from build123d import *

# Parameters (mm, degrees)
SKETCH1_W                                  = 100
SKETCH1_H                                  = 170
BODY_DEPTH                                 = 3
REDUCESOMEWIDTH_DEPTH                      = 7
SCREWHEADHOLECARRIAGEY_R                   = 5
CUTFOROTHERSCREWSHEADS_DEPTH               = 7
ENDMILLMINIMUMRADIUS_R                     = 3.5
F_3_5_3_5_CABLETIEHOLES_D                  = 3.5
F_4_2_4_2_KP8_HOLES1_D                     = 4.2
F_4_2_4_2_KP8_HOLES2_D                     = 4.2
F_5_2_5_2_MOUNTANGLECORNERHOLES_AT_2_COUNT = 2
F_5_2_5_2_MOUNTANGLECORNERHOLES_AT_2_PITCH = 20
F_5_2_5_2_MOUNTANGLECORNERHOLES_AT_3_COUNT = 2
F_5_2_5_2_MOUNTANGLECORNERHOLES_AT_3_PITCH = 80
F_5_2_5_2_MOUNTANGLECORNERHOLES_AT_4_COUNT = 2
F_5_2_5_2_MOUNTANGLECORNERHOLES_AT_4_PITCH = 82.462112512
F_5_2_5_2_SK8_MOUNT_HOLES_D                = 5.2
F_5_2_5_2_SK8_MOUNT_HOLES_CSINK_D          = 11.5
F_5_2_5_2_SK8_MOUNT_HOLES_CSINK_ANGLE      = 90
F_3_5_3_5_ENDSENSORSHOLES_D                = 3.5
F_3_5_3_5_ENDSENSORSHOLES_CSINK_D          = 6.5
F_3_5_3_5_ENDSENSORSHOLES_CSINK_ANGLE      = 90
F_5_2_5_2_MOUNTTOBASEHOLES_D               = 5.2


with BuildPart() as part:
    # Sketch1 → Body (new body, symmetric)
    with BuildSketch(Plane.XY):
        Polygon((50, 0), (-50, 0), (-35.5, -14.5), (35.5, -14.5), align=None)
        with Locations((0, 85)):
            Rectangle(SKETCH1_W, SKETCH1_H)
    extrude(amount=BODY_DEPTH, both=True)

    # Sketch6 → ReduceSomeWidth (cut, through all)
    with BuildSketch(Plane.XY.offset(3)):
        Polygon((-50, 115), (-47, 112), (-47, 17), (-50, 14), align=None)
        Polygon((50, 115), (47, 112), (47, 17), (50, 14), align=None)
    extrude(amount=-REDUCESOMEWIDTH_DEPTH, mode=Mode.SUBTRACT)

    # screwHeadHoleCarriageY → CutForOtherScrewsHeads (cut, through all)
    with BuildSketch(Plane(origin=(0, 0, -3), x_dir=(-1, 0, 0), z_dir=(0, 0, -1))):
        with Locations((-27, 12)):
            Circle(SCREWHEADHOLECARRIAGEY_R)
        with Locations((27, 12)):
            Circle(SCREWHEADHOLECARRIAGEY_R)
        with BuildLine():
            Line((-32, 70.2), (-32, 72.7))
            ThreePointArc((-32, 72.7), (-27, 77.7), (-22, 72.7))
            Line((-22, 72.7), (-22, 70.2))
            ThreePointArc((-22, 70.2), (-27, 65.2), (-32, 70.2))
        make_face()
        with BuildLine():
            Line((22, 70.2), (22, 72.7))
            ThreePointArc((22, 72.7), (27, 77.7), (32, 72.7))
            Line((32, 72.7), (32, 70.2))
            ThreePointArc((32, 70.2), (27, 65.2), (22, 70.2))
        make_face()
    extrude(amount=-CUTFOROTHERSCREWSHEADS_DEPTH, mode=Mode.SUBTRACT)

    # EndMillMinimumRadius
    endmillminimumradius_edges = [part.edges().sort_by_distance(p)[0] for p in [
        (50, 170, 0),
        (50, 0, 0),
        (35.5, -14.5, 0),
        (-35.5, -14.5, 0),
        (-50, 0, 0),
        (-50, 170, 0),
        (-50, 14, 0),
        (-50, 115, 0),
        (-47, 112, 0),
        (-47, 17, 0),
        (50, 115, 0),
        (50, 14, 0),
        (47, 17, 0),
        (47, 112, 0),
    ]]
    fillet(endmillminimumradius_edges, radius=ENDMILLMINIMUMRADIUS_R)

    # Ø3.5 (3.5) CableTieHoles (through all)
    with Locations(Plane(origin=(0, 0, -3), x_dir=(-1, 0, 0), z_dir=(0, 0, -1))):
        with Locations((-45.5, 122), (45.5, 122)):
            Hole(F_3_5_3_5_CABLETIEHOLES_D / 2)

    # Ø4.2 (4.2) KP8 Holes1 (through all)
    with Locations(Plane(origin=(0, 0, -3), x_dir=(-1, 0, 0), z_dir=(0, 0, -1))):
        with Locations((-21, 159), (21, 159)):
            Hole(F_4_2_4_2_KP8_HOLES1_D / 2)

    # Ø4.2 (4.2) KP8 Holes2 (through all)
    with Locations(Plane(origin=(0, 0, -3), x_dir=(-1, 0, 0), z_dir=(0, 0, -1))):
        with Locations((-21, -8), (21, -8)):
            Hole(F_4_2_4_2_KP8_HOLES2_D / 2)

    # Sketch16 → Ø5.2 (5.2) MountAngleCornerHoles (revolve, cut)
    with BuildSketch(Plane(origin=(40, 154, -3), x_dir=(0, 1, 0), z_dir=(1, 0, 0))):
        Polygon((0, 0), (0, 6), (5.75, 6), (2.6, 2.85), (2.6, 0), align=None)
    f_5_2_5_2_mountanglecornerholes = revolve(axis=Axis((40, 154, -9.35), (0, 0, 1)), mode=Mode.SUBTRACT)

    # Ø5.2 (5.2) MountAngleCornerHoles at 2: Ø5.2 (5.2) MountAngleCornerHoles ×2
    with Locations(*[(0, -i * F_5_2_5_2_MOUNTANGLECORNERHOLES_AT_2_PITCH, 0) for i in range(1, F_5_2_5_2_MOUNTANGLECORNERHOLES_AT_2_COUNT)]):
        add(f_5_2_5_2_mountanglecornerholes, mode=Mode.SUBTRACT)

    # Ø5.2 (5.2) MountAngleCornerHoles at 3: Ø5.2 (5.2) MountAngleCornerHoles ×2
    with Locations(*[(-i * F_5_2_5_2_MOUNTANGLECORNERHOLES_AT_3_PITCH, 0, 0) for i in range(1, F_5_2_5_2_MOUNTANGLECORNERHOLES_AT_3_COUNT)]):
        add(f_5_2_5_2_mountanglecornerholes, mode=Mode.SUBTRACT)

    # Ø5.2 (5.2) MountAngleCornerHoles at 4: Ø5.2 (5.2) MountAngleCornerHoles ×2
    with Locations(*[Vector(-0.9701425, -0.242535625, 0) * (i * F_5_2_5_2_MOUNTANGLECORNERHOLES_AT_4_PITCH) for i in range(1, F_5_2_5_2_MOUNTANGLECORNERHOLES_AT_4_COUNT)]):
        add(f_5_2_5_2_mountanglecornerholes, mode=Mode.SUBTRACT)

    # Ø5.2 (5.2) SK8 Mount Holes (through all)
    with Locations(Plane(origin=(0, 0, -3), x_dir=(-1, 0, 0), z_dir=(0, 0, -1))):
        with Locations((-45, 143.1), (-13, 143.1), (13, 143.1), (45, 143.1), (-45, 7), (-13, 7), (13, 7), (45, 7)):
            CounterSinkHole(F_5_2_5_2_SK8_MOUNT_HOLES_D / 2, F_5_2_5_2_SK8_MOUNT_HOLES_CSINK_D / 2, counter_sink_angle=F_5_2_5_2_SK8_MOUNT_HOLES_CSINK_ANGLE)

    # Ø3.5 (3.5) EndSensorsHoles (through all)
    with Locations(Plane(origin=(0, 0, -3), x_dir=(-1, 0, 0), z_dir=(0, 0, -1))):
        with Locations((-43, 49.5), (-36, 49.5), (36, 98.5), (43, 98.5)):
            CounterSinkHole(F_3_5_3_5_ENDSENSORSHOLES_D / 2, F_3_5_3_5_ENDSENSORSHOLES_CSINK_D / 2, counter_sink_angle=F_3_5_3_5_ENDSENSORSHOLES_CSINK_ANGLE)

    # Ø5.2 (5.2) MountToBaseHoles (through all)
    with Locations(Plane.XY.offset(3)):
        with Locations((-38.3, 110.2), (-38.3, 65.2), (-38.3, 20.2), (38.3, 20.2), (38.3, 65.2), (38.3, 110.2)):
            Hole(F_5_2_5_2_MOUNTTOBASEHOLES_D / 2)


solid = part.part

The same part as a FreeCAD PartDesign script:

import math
import FreeCAD as App
import Part
import Sketcher
Q = App.Units.Quantity


def edges_at(feature, points):
    """Names of the edges that pass closest to the given points."""
    edges = feature.Shape.Edges
    near = lambda p: min(range(len(edges)), key=lambda i: edges[i].distToShape(Part.Vertex(*p))[0])
    return sorted({f"Edge{near(p) + 1}" for p in points})


def add_polygon(sketch, points):
    """Adds a closed chain of lines whose ends are joined by coincident constraints."""
    first, n = sketch.GeometryCount, len(points)
    for a, b in zip(points, points[1:] + points[:1]):
        sketch.addGeometry(Part.LineSegment(App.Vector(*a, 0), App.Vector(*b, 0)), False)
    for i in range(n):
        sketch.addConstraint(Sketcher.Constraint("Coincident", first + i, 2, first + (i + 1) % n, 1))

doc = App.newDocument("Part")
body = doc.addObject("PartDesign::Body", "Body")

sketch1 = doc.addObject("Sketcher::SketchObject", "Sketch")
body.addObject(sketch1)
sketch1.AttachmentSupport = (doc.XY_Plane, [""])
sketch1.MapMode = "FlatFace"
add_polygon(sketch1, [(-50, 0), (-36, -14), (36, -14), (50, 0), (50, 170), (-50, 170)])
sketch1.addConstraint(Sketcher.Constraint("Horizontal", 1))
sketch1.addConstraint(Sketcher.Constraint("Vertical", 3))
sketch1.addConstraint(Sketcher.Constraint("Horizontal", 4))
sketch1.addConstraint(Sketcher.Constraint("Vertical", 5))
sketch1.addConstraint(Sketcher.Constraint("Symmetric", 2, 2, 5, 2, -1, 1))
sketch1.addConstraint(Sketcher.Constraint("PointOnObject", 2, 2, -1))
sketch1.addConstraint(Sketcher.Constraint("Perpendicular", 0, 2))
sketch1.addConstraint(Sketcher.Constraint("Equal", 0, 2))
sketch1.addConstraint(Sketcher.Constraint("DistanceX", 1, 1, 1, 2, Q("71 mm")))
sketch1.addConstraint(Sketcher.Constraint("DistanceX", 4, 2, 4, 1, Q("100 mm")))
sketch1.addConstraint(Sketcher.Constraint("DistanceY", 3, 1, 3, 2, Q("170 mm")))
pad1 = doc.addObject("PartDesign::Pad", "Pad")
body.addObject(pad1)
pad1.Profile = sketch1
pad1.Length = 6
pad1.Midplane = True

sketch2 = doc.addObject("Sketcher::SketchObject", "Sketch001")
body.addObject(sketch2)
sketch2.AttachmentSupport = (doc.XY_Plane, [""])
sketch2.MapMode = "FlatFace"
sketch2.AttachmentOffset = App.Placement(App.Vector(0, 0, 3), App.Rotation())
add_polygon(sketch2, [(-47, 112), (-50, 115), (-50, 14), (-47, 17)])
add_polygon(sketch2, [(50, 115), (47, 112), (47, 17), (50, 14)])
sketch2.addConstraint(Sketcher.Constraint("Vertical", 1))
sketch2.addConstraint(Sketcher.Constraint("Vertical", 3))
sketch2.addConstraint(Sketcher.Constraint("Vertical", 5))
sketch2.addConstraint(Sketcher.Constraint("Vertical", 7))
sketch2.addConstraint(Sketcher.Constraint("Symmetric", 3, 2, 4, 2, -2))
sketch2.addConstraint(Sketcher.Constraint("Symmetric", 1, 2, 6, 2, -2))
sketch2.addConstraint(Sketcher.Constraint("Perpendicular", 0, 2))
sketch2.addConstraint(Sketcher.Constraint("Parallel", 2, 4))
sketch2.addConstraint(Sketcher.Constraint("Perpendicular", 4, 6))
sketch2.addConstraint(Sketcher.Constraint("Horizontal", 2, 2, 5, 2))
sketch2.addConstraint(Sketcher.Constraint("DistanceY", 1, 2, 1, 1, Q("101 mm")))
sketch2.addConstraint(Sketcher.Constraint("DistanceY", 3, 1, 3, 2, Q("95 mm")))
sketch2.addConstraint(Sketcher.Constraint("DistanceX", 0, 2, -1, 1, Q("50 mm")))
sketch2.addConstraint(Sketcher.Constraint("DistanceY", -1, 1, 0, 2, Q("115 mm")))
pocket1 = doc.addObject("PartDesign::Pocket", "Pocket")
body.addObject(pocket1)
pocket1.Profile = sketch2
pocket1.Type = "ThroughAll"

sketch3 = doc.addObject("Sketcher::SketchObject", "Sketch002")
body.addObject(sketch3)
sketch3.AttachmentSupport = (doc.XY_Plane, [""])
sketch3.MapMode = "FlatFace"
sketch3.AttachmentOffset = App.Placement(App.Vector(0, 0, -3), App.Rotation())
sketch3.addGeometry(Part.Circle(App.Vector(27, 12, 0), App.Vector(0, 0, 1), 5), False)
sketch3.addGeometry(Part.Circle(App.Vector(-27, 12, 0), App.Vector(0, 0, 1), 5), False)
sketch3.addGeometry(Part.LineSegment(App.Vector(32, 72.7, 0), App.Vector(32, 70.2, 0)), False)
sketch3.addGeometry(Part.ArcOfCircle(Part.Circle(App.Vector(27, 70.2, 0), App.Vector(0, 0, 1), 5), math.radians(180), math.radians(360)), False)
sketch3.addGeometry(Part.LineSegment(App.Vector(22, 70.2, 0), App.Vector(22, 72.7, 0)), False)
sketch3.addGeometry(Part.ArcOfCircle(Part.Circle(App.Vector(27, 72.7, 0), App.Vector(0, 0, 1), 5), math.radians(0), math.radians(180)), False)
sketch3.addGeometry(Part.LineSegment(App.Vector(-22, 72.7, 0), App.Vector(-22, 70.2, 0)), False)
sketch3.addGeometry(Part.ArcOfCircle(Part.Circle(App.Vector(-27, 70.2, 0), App.Vector(0, 0, 1), 5), math.radians(180), math.radians(360)), False)
sketch3.addGeometry(Part.LineSegment(App.Vector(-32, 70.2, 0), App.Vector(-32, 72.7, 0)), False)
sketch3.addGeometry(Part.ArcOfCircle(Part.Circle(App.Vector(-27, 72.7, 0), App.Vector(0, 0, 1), 5), math.radians(0), math.radians(180)), False)
sketch3.addConstraint(Sketcher.Constraint("Tangent", 2, 2, 3, 2))
sketch3.addConstraint(Sketcher.Constraint("Tangent", 3, 1, 4, 1))
sketch3.addConstraint(Sketcher.Constraint("Tangent", 4, 2, 5, 2))
sketch3.addConstraint(Sketcher.Constraint("Tangent", 5, 1, 2, 1))
sketch3.addConstraint(Sketcher.Constraint("Tangent", 6, 2, 7, 2))
sketch3.addConstraint(Sketcher.Constraint("Tangent", 7, 1, 8, 1))
sketch3.addConstraint(Sketcher.Constraint("Tangent", 8, 2, 9, 2))
sketch3.addConstraint(Sketcher.Constraint("Tangent", 9, 1, 6, 1))
sketch3.addConstraint(Sketcher.Constraint("Vertical", 2))
sketch3.addConstraint(Sketcher.Constraint("Vertical", 4))
sketch3.addConstraint(Sketcher.Constraint("Vertical", 6))
sketch3.addConstraint(Sketcher.Constraint("Vertical", 8))
sketch3.addConstraint(Sketcher.Constraint("Equal", 0, 1))
sketch3.addConstraint(Sketcher.Constraint("Equal", 1, 3))
sketch3.addConstraint(Sketcher.Constraint("Equal", 5, 7))
sketch3.addConstraint(Sketcher.Constraint("Symmetric", 0, 3, 1, 3, -2))
sketch3.addConstraint(Sketcher.Constraint("Symmetric", 3, 3, 7, 3, -2))
sketch3.addConstraint(Sketcher.Constraint("Horizontal", 5, 3, 9, 3))
sketch3.addConstraint(Sketcher.Constraint("Vertical", 0, 3, 3, 3))
sketch3.addConstraint(Sketcher.Constraint("Diameter", 0, Q("10 mm")))
sketch3.addConstraint(Sketcher.Constraint("DistanceY", 2, 2, 2, 1, Q("2.5 mm")))
sketch3.addConstraint(Sketcher.Constraint("DistanceX", -1, 1, 0, 3, Q("27 mm")))
sketch3.addConstraint(Sketcher.Constraint("DistanceY", -1, 1, 0, 3, Q("12 mm")))
sketch3.addConstraint(Sketcher.Constraint("DistanceY", -1, 1, 3, 3, Q("70.2 mm")))
pocket2 = doc.addObject("PartDesign::Pocket", "Pocket001")
body.addObject(pocket2)
pocket2.Profile = sketch3
pocket2.Type = "ThroughAll"
pocket2.Reversed = True
doc.recompute()

fillet = doc.addObject("PartDesign::Fillet", "Fillet")
body.addObject(fillet)
fillet.Base = (pocket2, edges_at(pocket2, [
    (50, 170, 0),
    (50, 0, 0),
    (35.5, -14.5, 0),
    (-35.5, -14.5, 0),
    (-50, 0, 0),
    (-50, 170, 0),
    (-50, 14, 0),
    (-50, 115, 0),
    (-47, 112, 0),
    (-47, 17, 0),
    (50, 115, 0),
    (50, 14, 0),
    (47, 17, 0),
    (47, 112, 0),
]))
fillet.Radius = 3.5

sketch4 = doc.addObject("Sketcher::SketchObject", "Sketch003")
body.addObject(sketch4)
sketch4.AttachmentSupport = (doc.XY_Plane, [""])
sketch4.MapMode = "FlatFace"
sketch4.AttachmentOffset = App.Placement(App.Vector(0, 0, -3), App.Rotation())
sketch4.addGeometry(Part.Circle(App.Vector(45.5, 122, 0), App.Vector(0, 0, 1), 1.8), False)
sketch4.addGeometry(Part.Circle(App.Vector(-45.5, 122, 0), App.Vector(0, 0, 1), 1.8), False)
sketch4.addConstraint(Sketcher.Constraint("Equal", 0, 1))
sketch4.addConstraint(Sketcher.Constraint("Symmetric", 0, 3, 1, 3, -2))
sketch4.addConstraint(Sketcher.Constraint("Diameter", 0, Q("3.5 mm")))
sketch4.addConstraint(Sketcher.Constraint("DistanceY", -1, 1, 0, 3, Q("122 mm")))
sketch4.addConstraint(Sketcher.Constraint("DistanceX", 1, 3, 0, 3, Q("91 mm")))
doc.recompute()
hole = doc.addObject("PartDesign::Hole", "Hole")
body.addObject(hole)
hole.Profile = sketch4
hole.ThreadType = "None"
hole.Diameter = 3.5
hole.DepthType = "ThroughAll"
hole.Reversed = True

sketch5 = doc.addObject("Sketcher::SketchObject", "Sketch004")
body.addObject(sketch5)
sketch5.AttachmentSupport = (doc.XY_Plane, [""])
sketch5.MapMode = "FlatFace"
sketch5.AttachmentOffset = App.Placement(App.Vector(0, 0, -3), App.Rotation())
sketch5.addGeometry(Part.Circle(App.Vector(21, 159, 0), App.Vector(0, 0, 1), 2.1), False)
sketch5.addGeometry(Part.Circle(App.Vector(-21, 159, 0), App.Vector(0, 0, 1), 2.1), False)
sketch5.addConstraint(Sketcher.Constraint("Equal", 0, 1))
sketch5.addConstraint(Sketcher.Constraint("Symmetric", 0, 3, 1, 3, -2))
sketch5.addConstraint(Sketcher.Constraint("Diameter", 0, Q("4.2 mm")))
sketch5.addConstraint(Sketcher.Constraint("DistanceX", -1, 1, 0, 3, Q("21 mm")))
sketch5.addConstraint(Sketcher.Constraint("DistanceY", -1, 1, 0, 3, Q("159 mm")))
doc.recompute()
hole2 = doc.addObject("PartDesign::Hole", "Hole001")
body.addObject(hole2)
hole2.Profile = sketch5
hole2.ThreadType = "None"
hole2.Diameter = 4.2
hole2.DepthType = "ThroughAll"
hole2.Reversed = True

sketch6 = doc.addObject("Sketcher::SketchObject", "Sketch005")
body.addObject(sketch6)
sketch6.AttachmentSupport = (doc.XY_Plane, [""])
sketch6.MapMode = "FlatFace"
sketch6.AttachmentOffset = App.Placement(App.Vector(0, 0, -3), App.Rotation())
sketch6.addGeometry(Part.Circle(App.Vector(21, -8, 0), App.Vector(0, 0, 1), 2.1), False)
sketch6.addGeometry(Part.Circle(App.Vector(-21, -8, 0), App.Vector(0, 0, 1), 2.1), False)
sketch6.addConstraint(Sketcher.Constraint("Equal", 0, 1))
sketch6.addConstraint(Sketcher.Constraint("Symmetric", 0, 3, 1, 3, -2))
sketch6.addConstraint(Sketcher.Constraint("Diameter", 0, Q("4.2 mm")))
sketch6.addConstraint(Sketcher.Constraint("DistanceX", -1, 1, 0, 3, Q("21 mm")))
sketch6.addConstraint(Sketcher.Constraint("DistanceY", 0, 3, -1, 1, Q("8 mm")))
doc.recompute()
hole3 = doc.addObject("PartDesign::Hole", "Hole002")
body.addObject(hole3)
hole3.Profile = sketch6
hole3.ThreadType = "None"
hole3.Diameter = 4.2
hole3.DepthType = "ThroughAll"
hole3.Reversed = True

sketch7 = doc.addObject("Sketcher::SketchObject", "Sketch006")
body.addObject(sketch7)
sketch7.AttachmentSupport = (doc.YZ_Plane, [""])
sketch7.MapMode = "FlatFace"
sketch7.AttachmentOffset = App.Placement(App.Vector(0, 0, 40), App.Rotation())
add_polygon(sketch7, [(154, 3), (154, -3), (156.6, -3), (156.6, -0.1), (159.8, 3)])
sketch7.addGeometry(Part.LineSegment(App.Vector(154, -3, 0), App.Vector(154, 3, 0)), True)
sketch7.addConstraint(Sketcher.Constraint("Vertical", 0))
sketch7.addConstraint(Sketcher.Constraint("Horizontal", 1))
sketch7.addConstraint(Sketcher.Constraint("Vertical", 2))
sketch7.addConstraint(Sketcher.Constraint("Horizontal", 4))
sketch7.addConstraint(Sketcher.Constraint("Vertical", 5))
sketch7.addConstraint(Sketcher.Constraint("Coincident", 5, 1, 0, 2))
sketch7.addConstraint(Sketcher.Constraint("Horizontal", 3, 2, 5, 2))
sketch7.addConstraint(Sketcher.Constraint("DistanceY", 0, 2, 0, 1, Q("6 mm")))
sketch7.addConstraint(Sketcher.Constraint("Angle", 3, Q("45 deg")))
sketch7.addConstraint(Sketcher.Constraint("DistanceX", 1, 1, 1, 2, Q("2.6 mm")))
sketch7.addConstraint(Sketcher.Constraint("DistanceX", -1, 1, 0, 2, Q("154 mm")))
sketch7.addConstraint(Sketcher.Constraint("DistanceY", 0, 2, -1, 1, Q("3 mm")))
sketch7.addConstraint(Sketcher.Constraint("DistanceX", 4, 2, 4, 1, Q("5.75 mm")))
groove = doc.addObject("PartDesign::Groove", "Groove")
body.addObject(groove)
groove.Profile = sketch7
groove.ReferenceAxis = (sketch7, ["Axis0"])
groove.Angle = 360
doc.recompute()

linearpattern = doc.addObject("PartDesign::LinearPattern", "LinearPattern")
body.addObject(linearpattern)
linearpattern.Originals = [groove]
linearpattern.Direction = (doc.Y_Axis, [""])
linearpattern.Mode = "offset"
linearpattern.Offset = 20
linearpattern.Occurrences = 2
linearpattern.Reversed = True
body.Tip = linearpattern
doc.recompute()

linearpattern2 = doc.addObject("PartDesign::LinearPattern", "LinearPattern001")
body.addObject(linearpattern2)
linearpattern2.Originals = [groove]
linearpattern2.Direction = (doc.X_Axis, [""])
linearpattern2.Mode = "offset"
linearpattern2.Offset = 80
linearpattern2.Occurrences = 2
linearpattern2.Reversed = True
body.Tip = linearpattern2
doc.recompute()

datumline = doc.addObject("PartDesign::Line", "DatumLine")
body.addObject(datumline)
datumline.Placement = App.Placement(App.Vector(0, 0, 0), App.Rotation(App.Vector(0, 0, 1), App.Vector(-0.9701425, -0.242535625, 0)))
linearpattern3 = doc.addObject("PartDesign::LinearPattern", "LinearPattern002")
body.addObject(linearpattern3)
linearpattern3.Originals = [groove]
linearpattern3.Direction = (datumline, [""])
linearpattern3.Mode = "offset"
linearpattern3.Offset = 82.462113
linearpattern3.Occurrences = 2
body.Tip = linearpattern3

sketch8 = doc.addObject("Sketcher::SketchObject", "Sketch007")
body.addObject(sketch8)
sketch8.AttachmentSupport = (doc.XY_Plane, [""])
sketch8.MapMode = "FlatFace"
sketch8.AttachmentOffset = App.Placement(App.Vector(0, 0, -3), App.Rotation())
sketch8.addGeometry(Part.Circle(App.Vector(45, 143.1, 0), App.Vector(0, 0, 1), 2.6), False)
sketch8.addGeometry(Part.Circle(App.Vector(13, 143.1, 0), App.Vector(0, 0, 1), 2.6), False)
sketch8.addGeometry(Part.Circle(App.Vector(-13, 143.1, 0), App.Vector(0, 0, 1), 2.6), False)
sketch8.addGeometry(Part.Circle(App.Vector(-45, 143.1, 0), App.Vector(0, 0, 1), 2.6), False)
sketch8.addGeometry(Part.Circle(App.Vector(45, 7, 0), App.Vector(0, 0, 1), 2.6), False)
sketch8.addGeometry(Part.Circle(App.Vector(13, 7, 0), App.Vector(0, 0, 1), 2.6), False)
sketch8.addGeometry(Part.Circle(App.Vector(-13, 7, 0), App.Vector(0, 0, 1), 2.6), False)
sketch8.addGeometry(Part.Circle(App.Vector(-45, 7, 0), App.Vector(0, 0, 1), 2.6), False)
sketch8.addConstraint(Sketcher.Constraint("Equal", 0, 1))
sketch8.addConstraint(Sketcher.Constraint("Equal", 1, 2))
sketch8.addConstraint(Sketcher.Constraint("Equal", 2, 3))
sketch8.addConstraint(Sketcher.Constraint("Equal", 3, 4))
sketch8.addConstraint(Sketcher.Constraint("Equal", 4, 5))
sketch8.addConstraint(Sketcher.Constraint("Equal", 5, 6))
sketch8.addConstraint(Sketcher.Constraint("Equal", 6, 7))
sketch8.addConstraint(Sketcher.Constraint("Symmetric", 1, 3, 2, 3, -2))
sketch8.addConstraint(Sketcher.Constraint("Symmetric", 0, 3, 3, 3, -2))
sketch8.addConstraint(Sketcher.Constraint("Symmetric", 5, 3, 6, 3, -2))
sketch8.addConstraint(Sketcher.Constraint("Symmetric", 4, 3, 7, 3, -2))
sketch8.addConstraint(Sketcher.Constraint("Horizontal", 0, 3, 1, 3))
sketch8.addConstraint(Sketcher.Constraint("Horizontal", 4, 3, 5, 3))
sketch8.addConstraint(Sketcher.Constraint("Vertical", 0, 3, 4, 3))
sketch8.addConstraint(Sketcher.Constraint("Vertical", 1, 3, 5, 3))
sketch8.addConstraint(Sketcher.Constraint("Diameter", 0, Q("5.2 mm")))
sketch8.addConstraint(Sketcher.Constraint("DistanceX", -1, 1, 0, 3, Q("45 mm")))
sketch8.addConstraint(Sketcher.Constraint("DistanceX", -1, 1, 1, 3, Q("13 mm")))
sketch8.addConstraint(Sketcher.Constraint("DistanceY", -1, 1, 4, 3, Q("7 mm")))
sketch8.addConstraint(Sketcher.Constraint("DistanceY", -1, 1, 0, 3, Q("143.1 mm")))
doc.recompute()
hole4 = doc.addObject("PartDesign::Hole", "Hole003")
body.addObject(hole4)
hole4.Profile = sketch8
hole4.ThreadType = "None"
hole4.Diameter = 5.2
hole4.DepthType = "ThroughAll"
hole4.HoleCutType = "Countersink"
hole4.HoleCutDiameter = 11.5
hole4.HoleCutCountersinkAngle = 90
hole4.Reversed = True

sketch9 = doc.addObject("Sketcher::SketchObject", "Sketch008")
body.addObject(sketch9)
sketch9.AttachmentSupport = (doc.XY_Plane, [""])
sketch9.MapMode = "FlatFace"
sketch9.AttachmentOffset = App.Placement(App.Vector(0, 0, -3), App.Rotation())
sketch9.addGeometry(Part.Circle(App.Vector(43, 49.5, 0), App.Vector(0, 0, 1), 1.8), False)
sketch9.addGeometry(Part.Circle(App.Vector(36, 49.5, 0), App.Vector(0, 0, 1), 1.8), False)
sketch9.addGeometry(Part.Circle(App.Vector(-36, 98.5, 0), App.Vector(0, 0, 1), 1.8), False)
sketch9.addGeometry(Part.Circle(App.Vector(-43, 98.5, 0), App.Vector(0, 0, 1), 1.8), False)
sketch9.addConstraint(Sketcher.Constraint("Equal", 0, 1))
sketch9.addConstraint(Sketcher.Constraint("Equal", 1, 2))
sketch9.addConstraint(Sketcher.Constraint("Equal", 2, 3))
sketch9.addConstraint(Sketcher.Constraint("Horizontal", 0, 3, 1, 3))
sketch9.addConstraint(Sketcher.Constraint("Horizontal", 2, 3, 3, 3))
sketch9.addConstraint(Sketcher.Constraint("Diameter", 0, Q("3.5 mm")))
sketch9.addConstraint(Sketcher.Constraint("DistanceX", -1, 1, 0, 3, Q("43 mm")))
sketch9.addConstraint(Sketcher.Constraint("DistanceX", -1, 1, 1, 3, Q("36 mm")))
sketch9.addConstraint(Sketcher.Constraint("DistanceX", 2, 3, -1, 1, Q("36 mm")))
sketch9.addConstraint(Sketcher.Constraint("DistanceX", 3, 3, -1, 1, Q("43 mm")))
sketch9.addConstraint(Sketcher.Constraint("DistanceY", 1, 3, 2, 3, Q("49 mm")))
sketch9.addConstraint(Sketcher.Constraint("DistanceY", -1, 1, 0, 3, Q("49.5 mm")))
doc.recompute()
hole5 = doc.addObject("PartDesign::Hole", "Hole004")
body.addObject(hole5)
hole5.Profile = sketch9
hole5.ThreadType = "None"
hole5.Diameter = 3.5
hole5.DepthType = "ThroughAll"
hole5.HoleCutType = "Countersink"
hole5.HoleCutDiameter = 6.5
hole5.HoleCutCountersinkAngle = 90
hole5.Reversed = True

sketch10 = doc.addObject("Sketcher::SketchObject", "Sketch009")
body.addObject(sketch10)
sketch10.AttachmentSupport = (doc.XY_Plane, [""])
sketch10.MapMode = "FlatFace"
sketch10.AttachmentOffset = App.Placement(App.Vector(0, 0, 3), App.Rotation())
sketch10.addGeometry(Part.Circle(App.Vector(-38.3, 110.2, 0), App.Vector(0, 0, 1), 2.6), False)
sketch10.addGeometry(Part.Circle(App.Vector(-38.3, 65.2, 0), App.Vector(0, 0, 1), 2.6), False)
sketch10.addGeometry(Part.Circle(App.Vector(-38.3, 20.2, 0), App.Vector(0, 0, 1), 2.6), False)
sketch10.addGeometry(Part.Circle(App.Vector(38.3, 20.2, 0), App.Vector(0, 0, 1), 2.6), False)
sketch10.addGeometry(Part.Circle(App.Vector(38.3, 65.2, 0), App.Vector(0, 0, 1), 2.6), False)
sketch10.addGeometry(Part.Circle(App.Vector(38.3, 110.2, 0), App.Vector(0, 0, 1), 2.6), False)
sketch10.addConstraint(Sketcher.Constraint("Equal", 0, 1))
sketch10.addConstraint(Sketcher.Constraint("Equal", 1, 2))
sketch10.addConstraint(Sketcher.Constraint("Equal", 2, 3))
sketch10.addConstraint(Sketcher.Constraint("Equal", 3, 4))
sketch10.addConstraint(Sketcher.Constraint("Equal", 4, 5))
sketch10.addConstraint(Sketcher.Constraint("Symmetric", 2, 3, 3, 3, -2))
sketch10.addConstraint(Sketcher.Constraint("Symmetric", 1, 3, 4, 3, -2))
sketch10.addConstraint(Sketcher.Constraint("Symmetric", 0, 3, 5, 3, -2))
sketch10.addConstraint(Sketcher.Constraint("Vertical", 0, 3, 1, 3))
sketch10.addConstraint(Sketcher.Constraint("Vertical", 1, 3, 2, 3))
sketch10.addConstraint(Sketcher.Constraint("Diameter", 0, Q("5.2 mm")))
sketch10.addConstraint(Sketcher.Constraint("DistanceY", 1, 3, 0, 3, Q("45 mm")))
sketch10.addConstraint(Sketcher.Constraint("DistanceY", 2, 3, 1, 3, Q("45 mm")))
sketch10.addConstraint(Sketcher.Constraint("DistanceX", 0, 3, -1, 1, Q("38.3 mm")))
sketch10.addConstraint(Sketcher.Constraint("DistanceY", -1, 1, 0, 3, Q("110.2 mm")))
doc.recompute()
hole6 = doc.addObject("PartDesign::Hole", "Hole005")
body.addObject(hole6)
hole6.Profile = sketch10
hole6.ThreadType = "None"
hole6.Diameter = 5.2
hole6.DepthType = "ThroughAll"

doc.recompute()
